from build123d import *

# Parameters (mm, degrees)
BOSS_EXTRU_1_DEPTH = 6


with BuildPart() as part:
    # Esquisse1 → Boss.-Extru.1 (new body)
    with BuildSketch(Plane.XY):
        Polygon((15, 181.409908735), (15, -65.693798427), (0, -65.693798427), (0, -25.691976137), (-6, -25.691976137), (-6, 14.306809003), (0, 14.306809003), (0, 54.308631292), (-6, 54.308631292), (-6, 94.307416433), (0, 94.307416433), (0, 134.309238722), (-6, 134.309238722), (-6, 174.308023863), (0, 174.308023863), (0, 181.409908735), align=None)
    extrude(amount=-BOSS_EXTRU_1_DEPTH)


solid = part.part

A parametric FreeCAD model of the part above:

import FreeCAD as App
import Part
import Sketcher
from FreeCAD import Vector
Q = App.Units.Quantity


def add_polygon(sketch, points):
    """Adds a closed chain of lines whose ends are joined by coincident constraints."""
    first, n = sketch.GeometryCount, len(points)
    for a, b in zip(points, points[1:] + points[:1]):
        sketch.addGeometry(Part.LineSegment(App.Vector(*a, 0), App.Vector(*b, 0)), False)
    for i in range(n):
        sketch.addConstraint(Sketcher.Constraint("Coincident", first + i, 2, first + (i + 1) % n, 1))

doc = App.newDocument("Part")
body = doc.addObject("PartDesign::Body", "Body")

sketch1 = body.newObject("Sketcher::SketchObject", "Sketch")
sketch1.AttachmentSupport = (doc.getObject("XY_Plane"), [""])
sketch1.MapMode = "FlatFace"
add_polygon(sketch1, [(15, -65.693798), (15, 181.409909), (0, 181.409909), (0, 174.308024), (-6, 174.308024), (-6, 134.309239), (0, 134.309239), (0, 94.307416), (-6, 94.307416), (-6, 54.308631), (0, 54.308631), (0, 14.306809), (-6, 14.306809), (-6, -25.691976), (0, -25.691976), (0, -65.693798)])
sketch1.addConstraint([
    Sketcher.Constraint("Vertical", 0),
    Sketcher.Constraint("Horizontal", 1),
    Sketcher.Constraint("Vertical", 2),
    Sketcher.Constraint("Horizontal", 3),
    Sketcher.Constraint("Vertical", 4),
    Sketcher.Constraint("Horizontal", 5),
    Sketcher.Constraint("Vertical", 6),
    Sketcher.Constraint("Horizontal", 7),
    Sketcher.Constraint("Vertical", 8),
    Sketcher.Constraint("Horizontal", 9),
    Sketcher.Constraint("Vertical", 10),
    Sketcher.Constraint("Horizontal", 11),
    Sketcher.Constraint("Vertical", 12),
    Sketcher.Constraint("Horizontal", 13),
    Sketcher.Constraint("Vertical", 14),
    Sketcher.Constraint("Horizontal", 15),
    Sketcher.Constraint("PointOnObject", 1, 2, -2),
    Sketcher.Constraint("PointOnObject", 5, 2, -2),
    Sketcher.Constraint("PointOnObject", 9, 2, -2),
    Sketcher.Constraint("PointOnObject", 13, 2, -2),
    Sketcher.Constraint("Vertical", 4, 2, 7, 2),
    Sketcher.Constraint("Vertical", 8, 2, 11, 2),
    Sketcher.Constraint("Equal", 4, 8),
    Sketcher.Constraint("Equal", 6, 10),
    Sketcher.Constraint("Equal", 8, 12),
    Sketcher.Constraint("Equal", 10, 14),
    Sketcher.Constraint("DistanceX", 1, 2, 1, 1, Q("15 mm")),
    Sketcher.Constraint("DistanceX", 3, 2, 3, 1, Q("6 mm")),
    Sketcher.Constraint("DistanceY", 14, 2, -1, 1, Q("65.693798 mm")),
    Sketcher.Constraint("DistanceY", 0, 1, 0, 2, Q("247.103707 mm")),
    Sketcher.Constraint("DistanceY", 2, 2, 2, 1, Q("7.101885 mm")),
    Sketcher.Constraint("DistanceY", 4, 2, 4, 1, Q("39.998785 mm")),
])
pad1 = body.newObject("PartDesign::Pad", "Pad")
pad1.Profile = sketch1
pad1.Length = 6
pad1.Reversed = True

doc.recompute()
